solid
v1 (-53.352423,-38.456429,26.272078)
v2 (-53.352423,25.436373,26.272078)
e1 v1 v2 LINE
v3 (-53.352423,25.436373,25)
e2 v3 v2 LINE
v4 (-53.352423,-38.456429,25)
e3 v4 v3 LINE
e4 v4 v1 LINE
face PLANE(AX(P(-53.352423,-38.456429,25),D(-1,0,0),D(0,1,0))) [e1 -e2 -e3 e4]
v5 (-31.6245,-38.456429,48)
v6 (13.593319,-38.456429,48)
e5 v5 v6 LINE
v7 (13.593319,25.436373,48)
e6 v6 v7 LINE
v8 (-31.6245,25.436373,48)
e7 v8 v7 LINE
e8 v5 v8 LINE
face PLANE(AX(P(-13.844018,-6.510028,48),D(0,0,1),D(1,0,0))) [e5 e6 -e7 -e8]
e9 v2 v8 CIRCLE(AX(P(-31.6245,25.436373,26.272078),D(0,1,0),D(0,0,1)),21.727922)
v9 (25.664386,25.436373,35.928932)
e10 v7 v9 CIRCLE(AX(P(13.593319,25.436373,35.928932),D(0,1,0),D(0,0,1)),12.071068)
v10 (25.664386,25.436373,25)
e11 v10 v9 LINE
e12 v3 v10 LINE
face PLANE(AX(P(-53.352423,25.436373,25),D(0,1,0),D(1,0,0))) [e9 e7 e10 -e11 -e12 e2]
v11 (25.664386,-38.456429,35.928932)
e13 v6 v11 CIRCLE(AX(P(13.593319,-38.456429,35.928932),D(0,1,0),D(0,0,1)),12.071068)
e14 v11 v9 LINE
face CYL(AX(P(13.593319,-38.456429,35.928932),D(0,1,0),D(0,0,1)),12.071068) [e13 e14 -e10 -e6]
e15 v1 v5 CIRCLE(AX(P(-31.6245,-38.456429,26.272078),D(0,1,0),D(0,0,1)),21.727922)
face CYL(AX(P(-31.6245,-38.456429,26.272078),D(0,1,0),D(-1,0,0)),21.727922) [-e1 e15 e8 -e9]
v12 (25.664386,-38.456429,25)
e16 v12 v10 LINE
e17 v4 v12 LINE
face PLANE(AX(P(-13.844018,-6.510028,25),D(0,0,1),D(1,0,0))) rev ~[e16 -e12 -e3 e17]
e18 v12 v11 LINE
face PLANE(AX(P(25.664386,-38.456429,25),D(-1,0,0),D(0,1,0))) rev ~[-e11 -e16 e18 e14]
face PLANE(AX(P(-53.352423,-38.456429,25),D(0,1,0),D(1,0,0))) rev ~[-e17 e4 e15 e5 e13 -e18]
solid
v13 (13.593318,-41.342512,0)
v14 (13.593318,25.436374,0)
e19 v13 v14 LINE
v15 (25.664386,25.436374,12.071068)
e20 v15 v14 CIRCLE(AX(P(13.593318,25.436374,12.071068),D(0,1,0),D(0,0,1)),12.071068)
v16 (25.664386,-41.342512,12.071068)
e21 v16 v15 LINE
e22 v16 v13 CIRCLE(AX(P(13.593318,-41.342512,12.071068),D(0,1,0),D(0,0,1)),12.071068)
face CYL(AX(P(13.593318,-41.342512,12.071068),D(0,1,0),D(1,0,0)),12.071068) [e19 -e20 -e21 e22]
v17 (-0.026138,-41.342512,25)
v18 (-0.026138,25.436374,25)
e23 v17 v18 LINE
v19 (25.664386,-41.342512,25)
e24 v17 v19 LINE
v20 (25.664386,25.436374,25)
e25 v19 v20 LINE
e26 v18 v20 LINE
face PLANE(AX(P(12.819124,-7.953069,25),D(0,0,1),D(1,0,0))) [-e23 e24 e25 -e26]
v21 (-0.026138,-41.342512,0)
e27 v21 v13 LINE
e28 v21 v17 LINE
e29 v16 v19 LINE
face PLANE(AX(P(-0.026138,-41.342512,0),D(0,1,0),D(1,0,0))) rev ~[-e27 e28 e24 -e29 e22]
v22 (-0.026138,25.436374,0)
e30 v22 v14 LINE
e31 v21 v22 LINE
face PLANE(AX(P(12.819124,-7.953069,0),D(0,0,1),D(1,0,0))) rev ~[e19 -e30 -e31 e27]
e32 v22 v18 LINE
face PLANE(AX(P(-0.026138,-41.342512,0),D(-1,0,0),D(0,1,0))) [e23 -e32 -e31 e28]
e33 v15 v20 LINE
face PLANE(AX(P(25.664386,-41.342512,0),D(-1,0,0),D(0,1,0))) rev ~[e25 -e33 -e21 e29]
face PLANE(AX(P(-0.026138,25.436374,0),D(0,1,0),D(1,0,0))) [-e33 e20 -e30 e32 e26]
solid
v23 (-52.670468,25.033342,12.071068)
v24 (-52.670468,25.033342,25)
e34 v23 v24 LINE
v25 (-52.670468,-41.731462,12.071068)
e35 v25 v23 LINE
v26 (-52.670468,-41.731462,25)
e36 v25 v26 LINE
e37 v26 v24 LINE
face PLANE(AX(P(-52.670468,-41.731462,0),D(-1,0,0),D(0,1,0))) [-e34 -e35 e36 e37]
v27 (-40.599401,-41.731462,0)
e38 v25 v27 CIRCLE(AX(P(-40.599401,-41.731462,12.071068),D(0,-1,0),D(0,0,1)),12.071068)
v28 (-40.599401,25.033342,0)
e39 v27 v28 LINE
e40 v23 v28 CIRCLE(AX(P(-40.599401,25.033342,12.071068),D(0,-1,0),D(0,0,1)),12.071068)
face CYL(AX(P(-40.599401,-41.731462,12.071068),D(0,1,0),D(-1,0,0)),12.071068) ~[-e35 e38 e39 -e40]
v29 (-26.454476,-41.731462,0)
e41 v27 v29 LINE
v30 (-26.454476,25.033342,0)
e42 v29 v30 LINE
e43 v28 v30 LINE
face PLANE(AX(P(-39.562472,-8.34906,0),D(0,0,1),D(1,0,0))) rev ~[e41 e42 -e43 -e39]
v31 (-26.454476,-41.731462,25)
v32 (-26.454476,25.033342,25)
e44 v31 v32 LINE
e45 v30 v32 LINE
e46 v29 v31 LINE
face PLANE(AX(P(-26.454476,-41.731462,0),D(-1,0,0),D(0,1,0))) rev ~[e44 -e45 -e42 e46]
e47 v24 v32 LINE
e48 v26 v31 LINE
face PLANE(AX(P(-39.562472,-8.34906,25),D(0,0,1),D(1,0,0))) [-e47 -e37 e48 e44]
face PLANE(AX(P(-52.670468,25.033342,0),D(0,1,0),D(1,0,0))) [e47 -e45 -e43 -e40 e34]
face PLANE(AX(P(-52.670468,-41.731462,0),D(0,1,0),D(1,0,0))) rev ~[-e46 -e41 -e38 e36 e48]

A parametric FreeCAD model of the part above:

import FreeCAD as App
import Part
import Sketcher

V = App.Vector


def edges_at(feature, points):
    """Names of the edges that pass closest to the given points."""
    edges = feature.Shape.Edges
    near = lambda p: min(range(len(edges)), key=lambda i: edges[i].distToShape(Part.Vertex(*p))[0])
    return sorted({f"Edge{near(p) + 1}" for p in points})

doc = App.newDocument("Part")
body = doc.addObject("PartDesign::Body", "Body")
body.AllowCompound = True

# Sketch on XY plane
sketch1 = body.newObject("Sketcher::SketchObject", "Sketch")
sketch1.AttachmentSupport = (doc.getObject("XY_Plane"), [""])
sketch1.MapMode = "FlatFace"
sketch1.addGeometry([
    Part.LineSegment(V(-53, 25, 0), V(-53, -42, 0)),  # 0
    Part.LineSegment(V(-53, -42, 0), V(-26, -42, 0)),  # 1
    Part.LineSegment(V(-26, -42, 0), V(-26, 25, 0)),  # 2
    Part.LineSegment(V(-26, 25, 0), V(-53, 25, 0)),  # 3
    Part.LineSegment(V(0, 25, 0), V(0, -41, 0)),  # 4
    Part.LineSegment(V(0, -41, 0), V(26, -41, 0)),  # 5
    Part.LineSegment(V(26, -41, 0), V(26, 25, 0)),  # 6
    Part.LineSegment(V(26, 25, 0), V(0, 25, 0)),  # 7
], False)
sketch1.addConstraint([
    Sketcher.Constraint("Coincident", 0, 2, 1, 1),
    Sketcher.Constraint("Coincident", 1, 2, 2, 1),
    Sketcher.Constraint("Coincident", 2, 2, 3, 1),
    Sketcher.Constraint("Coincident", 3, 2, 0, 1),
    Sketcher.Constraint("Coincident", 4, 2, 5, 1),
    Sketcher.Constraint("Coincident", 5, 2, 6, 1),
    Sketcher.Constraint("Coincident", 6, 2, 7, 1),
    Sketcher.Constraint("Coincident", 7, 2, 4, 1),
    Sketcher.Constraint("Vertical", 0),
    Sketcher.Constraint("Horizontal", 1),
    Sketcher.Constraint("Vertical", 2),
    Sketcher.Constraint("Horizontal", 3),
    Sketcher.Constraint("Vertical", 4),
    Sketcher.Constraint("Horizontal", 5),
    Sketcher.Constraint("Vertical", 6),
    Sketcher.Constraint("Horizontal", 7),
    Sketcher.Constraint("DistanceX", 1, 1, 1, 2, 26.215993),
    Sketcher.Constraint("DistanceX", 5, 1, 5, 2, 25.690524),
    Sketcher.Constraint("DistanceY", 0, 2, 0, 1, 66.764804),
    Sketcher.Constraint("DistanceY", 4, 2, 4, 1, 66.778887),
    Sketcher.Constraint("DistanceX", 0, 2, -1, 1, 52.670468),
    Sketcher.Constraint("DistanceX", 4, 2, -1, 1, 0.026138),
    Sketcher.Constraint("DistanceY", 1, 2, 4, 2, 0.38895),
    Sketcher.Constraint("DistanceY", 0, 2, -1, 1, 41.731462),
])
pad1 = body.newObject("PartDesign::Pad", "Pad")
pad1.Profile = sketch1
pad1.Length = 25
doc.recompute()

fillet = body.newObject("PartDesign::Fillet", "Fillet")
fillet.Base = (pad1, edges_at(pad1, [(-52.67, -8.349, 0), (25.664, -7.953, 0)]))
fillet.Radius = 12.071068
body2 = doc.addObject("PartDesign::Body", "Body001")

# Sketch on XY plane
sketch2 = body2.newObject("Sketcher::SketchObject", "Sketch001")
sketch2.AttachmentSupport = (doc.getObject("XY_Plane001"), [""])
sketch2.MapMode = "FlatFace"
sketch2.AttachmentOffset = App.Placement(V(0, 0, 25), App.Rotation())
sketch2.addGeometry([
    Part.LineSegment(V(-53, 25, 0), V(-53, -38, 0)),
    Part.LineSegment(V(-53, -38, 0), V(26, -38, 0)),
    Part.LineSegment(V(26, -38, 0), V(26, 25, 0)),
    Part.LineSegment(V(26, 25, 0), V(-53, 25, 0)),
], False)
sketch2.addConstraint([
    Sketcher.Constraint("Coincident", 0, 2, 1, 1),
    Sketcher.Constraint("Coincident", 1, 2, 2, 1),
    Sketcher.Constraint("Coincident", 2, 2, 3, 1),
    Sketcher.Constraint("Coincident", 3, 2, 0, 1),
    Sketcher.Constraint("Vertical", 0),
    Sketcher.Constraint("Horizontal", 1),
    Sketcher.Constraint("Vertical", 2),
    Sketcher.Constraint("Horizontal", 3),
    Sketcher.Constraint("DistanceX", 1, 1, 1, 2, 79.016809),
    Sketcher.Constraint("DistanceY", 0, 2, 0, 1, 63.892803),
    Sketcher.Constraint("DistanceY", 0, 2, -1, 1, 38.456429),
    Sketcher.Constraint("DistanceX", 0, 2, -1, 1, 53.352423),
])
pad2 = body2.newObject("PartDesign::Pad", "Pad001")
pad2.Profile = sketch2
pad2.Length = 23
doc.recompute()

fillet2 = body2.newObject("PartDesign::Fillet", "Fillet001")
fillet2.Base = (pad2, edges_at(pad2, [(-53.352, -6.51, 48)]))
fillet2.Radius = 21.727922
doc.recompute()

fillet3 = body2.newObject("PartDesign::Fillet", "Fillet002")
fillet3.Base = (fillet2, edges_at(fillet2, [(25.664, -6.51, 48)]))
fillet3.Radius = 12.071068

doc.recompute()
